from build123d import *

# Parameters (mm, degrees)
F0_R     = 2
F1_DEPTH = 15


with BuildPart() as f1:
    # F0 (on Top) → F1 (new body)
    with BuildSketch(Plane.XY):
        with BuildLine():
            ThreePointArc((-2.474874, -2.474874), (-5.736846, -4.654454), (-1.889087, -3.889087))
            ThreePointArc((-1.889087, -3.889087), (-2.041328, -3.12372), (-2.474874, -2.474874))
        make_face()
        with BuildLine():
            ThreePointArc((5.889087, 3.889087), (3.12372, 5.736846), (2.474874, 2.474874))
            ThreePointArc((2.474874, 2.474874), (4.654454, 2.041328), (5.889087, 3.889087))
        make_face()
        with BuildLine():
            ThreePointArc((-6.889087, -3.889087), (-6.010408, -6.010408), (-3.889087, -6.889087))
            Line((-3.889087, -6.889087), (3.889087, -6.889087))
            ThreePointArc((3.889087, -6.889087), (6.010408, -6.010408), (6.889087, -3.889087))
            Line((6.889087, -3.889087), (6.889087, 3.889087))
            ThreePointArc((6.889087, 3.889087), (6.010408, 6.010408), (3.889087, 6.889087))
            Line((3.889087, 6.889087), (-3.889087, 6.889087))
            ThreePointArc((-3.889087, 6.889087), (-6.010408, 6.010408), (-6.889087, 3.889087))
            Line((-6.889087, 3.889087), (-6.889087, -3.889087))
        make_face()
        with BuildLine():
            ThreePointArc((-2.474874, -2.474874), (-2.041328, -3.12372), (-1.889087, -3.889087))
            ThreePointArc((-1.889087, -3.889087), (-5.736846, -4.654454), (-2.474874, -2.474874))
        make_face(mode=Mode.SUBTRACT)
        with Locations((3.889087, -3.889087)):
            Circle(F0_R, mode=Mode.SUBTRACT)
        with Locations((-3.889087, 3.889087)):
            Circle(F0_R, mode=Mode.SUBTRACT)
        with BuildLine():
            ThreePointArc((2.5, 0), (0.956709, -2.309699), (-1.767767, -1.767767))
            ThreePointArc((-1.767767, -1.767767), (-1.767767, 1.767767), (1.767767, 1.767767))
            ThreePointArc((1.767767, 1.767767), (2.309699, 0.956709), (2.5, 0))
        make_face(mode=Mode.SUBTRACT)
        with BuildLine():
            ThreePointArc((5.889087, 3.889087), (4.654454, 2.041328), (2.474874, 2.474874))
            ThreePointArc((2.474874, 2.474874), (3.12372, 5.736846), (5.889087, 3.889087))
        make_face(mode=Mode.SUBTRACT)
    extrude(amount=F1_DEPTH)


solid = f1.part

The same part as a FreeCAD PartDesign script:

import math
import FreeCAD as App
import Part
import Sketcher

V = App.Vector
Q = App.Units.Quantity

doc = App.newDocument("Part")
params = doc.addObject("Spreadsheet::Sheet", "Params")
for row, (alias, value) in enumerate([
    ("sketch1_diameter", "4 mm"),
    ("sketch1_radius", "2.5 mm"),
    ("pad1_length", "15 mm"),
], start=1):
    params.set(f"A{row}", alias)
    params.set(f"B{row}", "=" + value)
    params.setAlias(f"B{row}", alias)

body = doc.addObject("PartDesign::Body", "Body")

# Sketch on XY plane
sketch1 = body.newObject("Sketcher::SketchObject", "Sketch")
sketch1.AttachmentSupport = (doc.getObject("XY_Plane"), [""])
sketch1.MapMode = "FlatFace"
sketch1.addGeometry([
    Part.ArcOfCircle(Part.Circle(V(-3.9, -3.9, 0), V(0, 0, 1), 3), math.radians(180), math.radians(270)),  # 0
    Part.LineSegment(V(-3.9, -6.9, 0), V(3.9, -6.9, 0)),  # 1
    Part.ArcOfCircle(Part.Circle(V(3.9, -3.9, 0), V(0, 0, 1), 3), math.radians(-90), math.radians(0)),  # 2
    Part.LineSegment(V(6.9, -3.9, 0), V(6.9, 3.9, 0)),  # 3
    Part.ArcOfCircle(Part.Circle(V(3.9, 3.9, 0), V(0, 0, 1), 3), math.radians(0), math.radians(90)),  # 4
    Part.LineSegment(V(3.9, 6.9, 0), V(-3.9, 6.9, 0)),  # 5
    Part.ArcOfCircle(Part.Circle(V(-3.9, 3.9, 0), V(0, 0, 1), 3), math.radians(90), math.radians(180)),  # 6
    Part.LineSegment(V(-6.9, 3.9, 0), V(-6.9, -3.9, 0)),  # 7
    Part.ArcOfCircle(Part.Circle(V(-3.9, -3.9, 0), V(0, 0, 1), 2), math.radians(45), math.radians(360)),  # 8
    Part.ArcOfCircle(Part.Circle(V(-3.9, -3.9, 0), V(0, 0, 1), 2), math.radians(0), math.radians(45)),  # 9
    Part.Circle(V(3.9, -3.9, 0), V(0, 0, 1), 2),  # 10
    Part.ArcOfCircle(Part.Circle(V(0, 0, 0), V(0, 0, 1), 2.5), math.radians(0), math.radians(45)),  # 11
    Part.ArcOfCircle(Part.Circle(V(0, 0, 0), V(0, 0, 1), 2.5), math.radians(-135), math.radians(0)),  # 12
    Part.ArcOfCircle(Part.Circle(V(0, 0, 0), V(0, 0, 1), 2.5), math.radians(45), math.radians(225)),  # 13
    Part.Circle(V(-3.9, 3.9, 0), V(0, 0, 1), 2),  # 14
    Part.ArcOfCircle(Part.Circle(V(3.9, 3.9, 0), V(0, 0, 1), 2), math.radians(0), math.radians(225)),  # 15
    Part.ArcOfCircle(Part.Circle(V(3.9, 3.9, 0), V(0, 0, 1), 2), math.radians(-135), math.radians(0)),  # 16
], False)
sketch1.addConstraint([
    Sketcher.Constraint("Tangent", 0, 2, 1, 1),
    Sketcher.Constraint("Tangent", 1, 2, 2, 1),
    Sketcher.Constraint("Tangent", 2, 2, 3, 1),
    Sketcher.Constraint("Tangent", 3, 2, 4, 1),
    Sketcher.Constraint("Tangent", 4, 2, 5, 1),
    Sketcher.Constraint("Tangent", 5, 2, 6, 1),
    Sketcher.Constraint("Tangent", 6, 2, 7, 1),
    Sketcher.Constraint("Tangent", 7, 2, 0, 1),
    Sketcher.Constraint("Tangent", 8, 1, 9, 2),
    Sketcher.Constraint("Coincident", 9, 1, 8, 2),
    Sketcher.Constraint("Tangent", 11, 1, 12, 2),
    Sketcher.Constraint("Tangent", 12, 1, 13, 2),
    Sketcher.Constraint("Tangent", 13, 1, 11, 2),
    Sketcher.Constraint("Tangent", 15, 1, 16, 2),
    Sketcher.Constraint("Coincident", 16, 1, 15, 2),
    Sketcher.Constraint("Horizontal", 1),
    Sketcher.Constraint("Vertical", 3),
    Sketcher.Constraint("Horizontal", 5),
    Sketcher.Constraint("Vertical", 7),
    Sketcher.Constraint("Coincident", 11, 3, -1, 1),
    Sketcher.Constraint("Coincident", 8, 3, 0, 3),
    Sketcher.Constraint("Coincident", 10, 3, 2, 3),
    Sketcher.Constraint("Coincident", 14, 3, 6, 3),
    Sketcher.Constraint("Coincident", 15, 3, 4, 3),
    Sketcher.Constraint("Equal", 0, 2),
    Sketcher.Constraint("Equal", 2, 4),
    Sketcher.Constraint("Equal", 4, 6),
    Sketcher.Constraint("Equal", 8, 10),
    Sketcher.Constraint("Equal", 10, 14),
    Sketcher.Constraint("Equal", 14, 15),
    Sketcher.Constraint("Symmetric", 0, 3, 4, 3, -1, 1),
    Sketcher.Constraint("PointOnObject", 11, 1, -1),
    Sketcher.Constraint("Horizontal", 7, 2, 9, 1),
    Sketcher.Constraint("Horizontal", 6, 2, 15, 1),
    Sketcher.Constraint("Equal", 5, 3),
    Sketcher.Constraint("Diameter", 10, Q("4 mm")),
    Sketcher.Constraint("Radius", 12, Q("2.5 mm")),
    Sketcher.Constraint("DistanceY", 0, 2, 8, 3, Q("2.999999 mm")),
    Sketcher.Constraint("DistanceX", 1, 1, 1, 2, Q("7.778174 mm")),
    Sketcher.Constraint("DistanceX", 9, 1, 12, 1, Q("0.12132 mm")),
    Sketcher.Constraint("DistanceX", 13, 1, 16, 3, Q("2.121321 mm")),
    Sketcher.Constraint("DistanceX", 8, 1, -1, 1, Q("2.474874 mm")),
    Sketcher.Constraint("DistanceX", -1, 1, 16, 1, Q("2.474874 mm")),
])
sketch1.setExpression("Constraints[35]", "Params.sketch1_diameter")
sketch1.setExpression("Constraints[36]", "Params.sketch1_radius")
pad1 = body.newObject("PartDesign::Pad", "Pad")
pad1.Profile = sketch1
pad1.setExpression("Length", "Params.pad1_length")

doc.recompute()
